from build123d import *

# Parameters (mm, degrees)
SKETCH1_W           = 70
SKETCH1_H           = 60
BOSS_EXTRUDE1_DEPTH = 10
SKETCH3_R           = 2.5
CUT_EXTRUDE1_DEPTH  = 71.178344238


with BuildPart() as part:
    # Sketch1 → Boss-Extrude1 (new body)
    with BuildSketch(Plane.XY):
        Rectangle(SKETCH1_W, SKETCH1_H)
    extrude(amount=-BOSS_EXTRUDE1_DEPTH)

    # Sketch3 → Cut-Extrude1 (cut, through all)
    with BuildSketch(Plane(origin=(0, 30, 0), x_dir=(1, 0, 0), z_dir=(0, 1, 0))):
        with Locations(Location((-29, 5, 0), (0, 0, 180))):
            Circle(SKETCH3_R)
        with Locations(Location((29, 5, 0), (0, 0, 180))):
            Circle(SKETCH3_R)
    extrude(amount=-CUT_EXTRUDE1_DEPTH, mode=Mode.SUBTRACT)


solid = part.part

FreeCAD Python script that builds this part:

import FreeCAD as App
import Part
import Sketcher

doc = App.newDocument("Part")
body = doc.addObject("PartDesign::Body", "Body")

sketch1 = body.newObject("Sketcher::SketchObject", "Sketch")
sketch1.AttachmentSupport = (doc.getObject("XY_Plane"), [""])
sketch1.MapMode = "FlatFace"
sketch1.addGeometry([
    Part.LineSegment(App.Vector(-35, 30, 0), App.Vector(-35, -30, 0)),
    Part.LineSegment(App.Vector(-35, -30, 0), App.Vector(35, -30, 0)),
    Part.LineSegment(App.Vector(35, -30, 0), App.Vector(35, 30, 0)),
    Part.LineSegment(App.Vector(35, 30, 0), App.Vector(-35, 30, 0)),
], False)
sketch1.addConstraint([
    Sketcher.Constraint("Coincident", 0, 2, 1, 1),
    Sketcher.Constraint("Coincident", 1, 2, 2, 1),
    Sketcher.Constraint("Coincident", 2, 2, 3, 1),
    Sketcher.Constraint("Coincident", 3, 2, 0, 1),
    Sketcher.Constraint("Vertical", 0),
    Sketcher.Constraint("Horizontal", 1),
    Sketcher.Constraint("Vertical", 2),
    Sketcher.Constraint("Horizontal", 3),
    Sketcher.Constraint("Symmetric", 0, 2, 2, 2, -1, 1),
    Sketcher.Constraint("DistanceX", 1, 1, 1, 2, 70.0),
    Sketcher.Constraint("DistanceY", 0, 2, 0, 1, 60.0),
])
pad1 = body.newObject("PartDesign::Pad", "Pad")
pad1.Profile = sketch1
pad1.Length = 10
pad1.Reversed = True

sketch2 = body.newObject("Sketcher::SketchObject", "Sketch001")
sketch2.AttachmentSupport = (doc.getObject("XZ_Plane"), [""])
sketch2.MapMode = "FlatFace"
sketch2.AttachmentOffset = App.Placement(App.Vector(0, 0, -30), App.Rotation())
sketch2.addGeometry([
    Part.Circle(App.Vector(-29, -5, 0), App.Vector(0, 0, 1), 2.5),
    Part.Circle(App.Vector(29, -5, 0), App.Vector(0, 0, 1), 2.5),
], False)
sketch2.addConstraint([
    Sketcher.Constraint("Equal", 0, 1),
    Sketcher.Constraint("Symmetric", 0, 3, 1, 3, -2),
    Sketcher.Constraint("Diameter", 0, 5.0),
    Sketcher.Constraint("DistanceX", 0, 3, -1, 1, 29.0),
    Sketcher.Constraint("DistanceY", 0, 3, -1, 1, 5.0),
])
pocket1 = body.newObject("PartDesign::Pocket", "Pocket")
pocket1.Profile = sketch2
pocket1.Type = "ThroughAll"
pocket1.Reversed = True

doc.recompute()
